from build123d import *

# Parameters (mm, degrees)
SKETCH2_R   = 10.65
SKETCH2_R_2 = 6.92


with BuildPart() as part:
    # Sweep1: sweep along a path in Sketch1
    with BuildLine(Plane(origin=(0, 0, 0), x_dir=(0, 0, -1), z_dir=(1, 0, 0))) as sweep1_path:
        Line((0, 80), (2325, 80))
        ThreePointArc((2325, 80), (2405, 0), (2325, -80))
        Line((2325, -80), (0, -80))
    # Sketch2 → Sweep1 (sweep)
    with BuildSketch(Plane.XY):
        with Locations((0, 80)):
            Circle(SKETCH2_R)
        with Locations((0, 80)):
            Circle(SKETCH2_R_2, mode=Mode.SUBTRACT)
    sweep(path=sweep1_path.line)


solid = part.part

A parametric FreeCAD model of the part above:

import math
import FreeCAD as App
import Part
import Sketcher
from FreeCAD import Vector

doc = App.newDocument("Part")
params = doc.addObject("Spreadsheet::Sheet", "Params")
for row, (alias, value) in enumerate([
    ("sketch1_diameter", "21.3 mm"),
    ("sketch1_diameter2", "13.84 mm"),
    ("sketch2_radius", "80 mm"),
    ("sketch2_height", "2325 mm"),
], start=1):
    params.set(f"A{row}", alias)
    params.set(f"B{row}", "=" + value)
    params.setAlias(f"B{row}", alias)

body = doc.addObject("PartDesign::Body", "Body")

# Sketch on XY plane
sketch1 = body.newObject("Sketcher::SketchObject", "Sketch")
sketch1.AttachmentSupport = (doc.getObject("XY_Plane"), [""])
sketch1.MapMode = "FlatFace"
sketch1.addGeometry([
    Part.Circle(Vector(0, 80, 0), Vector(0, 0, 1), 11),
    Part.Circle(Vector(0, 80, 0), Vector(0, 0, 1), 7),
], False)
sketch1.addConstraint([
    Sketcher.Constraint("Coincident", 1, 3, 0, 3),
    Sketcher.Constraint("PointOnObject", 0, 3, -2),
    Sketcher.Constraint("Diameter", 0, 21.3),
    Sketcher.Constraint("Diameter", 1, 13.84),
    Sketcher.Constraint("DistanceY", -1, 1, 0, 3, 80.0),
])
sketch1.setExpression("Constraints[2]", "Params.sketch1_diameter")
sketch1.setExpression("Constraints[3]", "Params.sketch1_diameter2")

# Sketch on YZ plane
sketch2 = body.newObject("Sketcher::SketchObject", "Sketch001")
sketch2.AttachmentSupport = (doc.getObject("YZ_Plane"), [""])
sketch2.MapMode = "FlatFace"
sketch2.addGeometry([
    Part.LineSegment(Vector(80, 0, 0), Vector(80, -2325, 0)),
    Part.ArcOfCircle(Part.Circle(Vector(0, -2325, 0), Vector(0, 0, 1), 80), math.radians(180), math.radians(360)),
    Part.LineSegment(Vector(-80, -2325, 0), Vector(-80, 0, 0)),
], False)
sketch2.addConstraint([
    Sketcher.Constraint("Tangent", 0, 2, 1, 2),
    Sketcher.Constraint("Tangent", 1, 1, 2, 1),
    Sketcher.Constraint("Vertical", 0),
    Sketcher.Constraint("Vertical", 2),
    Sketcher.Constraint("Symmetric", 0, 1, 2, 2, -1, 1),
    Sketcher.Constraint("PointOnObject", 0, 1, -1),
    Sketcher.Constraint("Radius", 1, 80.0),
    Sketcher.Constraint("DistanceY", 0, 2, 0, 1, 2325.0),
])
sketch2.setExpression("Constraints[6]", "Params.sketch2_radius")
sketch2.setExpression("Constraints[7]", "Params.sketch2_height")
doc.recompute()

additivepipe = body.newObject("PartDesign::AdditivePipe", "AdditivePipe")
additivepipe.Profile = sketch1
additivepipe.Spine = (sketch2, ["Edge1", "Edge2", "Edge3"])

doc.recompute()
